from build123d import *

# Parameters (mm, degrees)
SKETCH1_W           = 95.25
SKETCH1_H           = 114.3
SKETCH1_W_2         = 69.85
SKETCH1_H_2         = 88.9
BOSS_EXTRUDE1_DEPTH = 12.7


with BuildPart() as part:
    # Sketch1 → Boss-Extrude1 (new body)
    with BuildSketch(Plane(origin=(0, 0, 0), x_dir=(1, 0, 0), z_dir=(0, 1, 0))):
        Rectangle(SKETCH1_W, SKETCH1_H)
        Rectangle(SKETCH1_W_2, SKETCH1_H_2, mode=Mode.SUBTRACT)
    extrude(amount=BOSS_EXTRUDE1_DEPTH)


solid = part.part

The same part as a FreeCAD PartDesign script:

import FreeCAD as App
import Part
import Sketcher
Q = App.Units.Quantity


def add_polygon(sketch, points):
    """Adds a closed chain of lines whose ends are joined by coincident constraints."""
    first, n = sketch.GeometryCount, len(points)
    for a, b in zip(points, points[1:] + points[:1]):
        sketch.addGeometry(Part.LineSegment(App.Vector(*a, 0), App.Vector(*b, 0)), False)
    for i in range(n):
        sketch.addConstraint(Sketcher.Constraint("Coincident", first + i, 2, first + (i + 1) % n, 1))

doc = App.newDocument("Part")
body = doc.addObject("PartDesign::Body", "Body")

sketch1 = doc.addObject("Sketcher::SketchObject", "Sketch")
body.addObject(sketch1)
sketch1.AttachmentSupport = (doc.XZ_Plane, [""])
sketch1.MapMode = "FlatFace"
add_polygon(sketch1, [(-48, -57), (-48, 57), (48, 57), (48, -57)])
add_polygon(sketch1, [(35, 44), (-35, 44), (-35, -44), (35, -44)])
sketch1.addConstraint([
    Sketcher.Constraint("Vertical", 0),
    Sketcher.Constraint("Horizontal", 1),
    Sketcher.Constraint("Vertical", 2),
    Sketcher.Constraint("Horizontal", 3),
    Sketcher.Constraint("Horizontal", 4),
    Sketcher.Constraint("Vertical", 5),
    Sketcher.Constraint("Horizontal", 6),
    Sketcher.Constraint("Vertical", 7),
    Sketcher.Constraint("Symmetric", 0, 2, 2, 2, -1, 1),
    Sketcher.Constraint("Symmetric", 4, 2, 6, 2, -1, 1),
    Sketcher.Constraint("DistanceY", 0, 1, 0, 2, Q("4.5 in")),
    Sketcher.Constraint("DistanceY", 5, 2, 5, 1, Q("3.5 in")),
    Sketcher.Constraint("DistanceX", 1, 1, 1, 2, Q("3.75 in")),
    Sketcher.Constraint("DistanceX", 4, 2, 4, 1, Q("2.75 in")),
])
pad1 = doc.addObject("PartDesign::Pad", "Pad")
body.addObject(pad1)
pad1.Profile = sketch1
pad1.Length = Q("0.5 in")
pad1.Reversed = True

doc.recompute()
